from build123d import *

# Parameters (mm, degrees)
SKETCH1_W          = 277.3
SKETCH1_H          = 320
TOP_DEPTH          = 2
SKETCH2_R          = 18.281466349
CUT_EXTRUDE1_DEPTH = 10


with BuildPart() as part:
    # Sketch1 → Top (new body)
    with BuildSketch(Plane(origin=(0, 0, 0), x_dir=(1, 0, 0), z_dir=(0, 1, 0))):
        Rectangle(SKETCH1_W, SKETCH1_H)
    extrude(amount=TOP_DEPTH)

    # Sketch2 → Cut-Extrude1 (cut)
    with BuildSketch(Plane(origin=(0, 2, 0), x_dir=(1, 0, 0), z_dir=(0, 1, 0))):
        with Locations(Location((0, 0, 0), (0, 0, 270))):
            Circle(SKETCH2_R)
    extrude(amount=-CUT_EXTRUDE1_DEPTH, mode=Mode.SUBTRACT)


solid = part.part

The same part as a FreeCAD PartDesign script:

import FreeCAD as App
import Part
import Sketcher

V = App.Vector
Q = App.Units.Quantity

doc = App.newDocument("Part")
params = doc.addObject("Spreadsheet::Sheet", "Params")
for row, (alias, value) in enumerate([
    ("sketch1_height", "320 mm"),
    ("sketch1_width", "277.3 mm"),
    ("pad1_length", "2 mm"),
    ("pocket1_length", "10 mm"),
], start=1):
    params.set(f"A{row}", alias)
    params.set(f"B{row}", "=" + value)
    params.setAlias(f"B{row}", alias)

body = doc.addObject("PartDesign::Body", "Body")

sketch1 = doc.addObject("Sketcher::SketchObject", "Sketch")
body.addObject(sketch1)
sketch1.AttachmentSupport = (doc.XZ_Plane, [""])
sketch1.MapMode = "FlatFace"
sketch1.addGeometry(Part.LineSegment(V(-138.65, -160, 0), V(-138.65, 160, 0)), False)
sketch1.addGeometry(Part.LineSegment(V(-138.65, 160, 0), V(138.65, 160, 0)), False)
sketch1.addGeometry(Part.LineSegment(V(138.65, 160, 0), V(138.65, -160, 0)), False)
sketch1.addGeometry(Part.LineSegment(V(138.65, -160, 0), V(-138.65, -160, 0)), False)
sketch1.addConstraint(Sketcher.Constraint("Coincident", 0, 2, 1, 1))
sketch1.addConstraint(Sketcher.Constraint("Coincident", 1, 2, 2, 1))
sketch1.addConstraint(Sketcher.Constraint("Coincident", 2, 2, 3, 1))
sketch1.addConstraint(Sketcher.Constraint("Coincident", 3, 2, 0, 1))
sketch1.addConstraint(Sketcher.Constraint("Vertical", 0))
sketch1.addConstraint(Sketcher.Constraint("Horizontal", 1))
sketch1.addConstraint(Sketcher.Constraint("Vertical", 2))
sketch1.addConstraint(Sketcher.Constraint("Horizontal", 3))
sketch1.addConstraint(Sketcher.Constraint("Symmetric", 0, 2, 2, 2, -1, 1))
sketch1.addConstraint(Sketcher.Constraint("DistanceY", 0, 1, 0, 2, Q("320 mm")))
sketch1.addConstraint(Sketcher.Constraint("DistanceX", 1, 1, 1, 2, Q("277.3 mm")))
sketch1.setExpression("Constraints[9]", "Params.sketch1_height")
sketch1.setExpression("Constraints[10]", "Params.sketch1_width")
pad1 = doc.addObject("PartDesign::Pad", "Pad")
body.addObject(pad1)
pad1.Profile = sketch1
pad1.setExpression("Length", "Params.pad1_length")
pad1.Reversed = True

sketch2 = doc.addObject("Sketcher::SketchObject", "Sketch001")
body.addObject(sketch2)
sketch2.AttachmentSupport = (doc.XZ_Plane, [""])
sketch2.MapMode = "FlatFace"
sketch2.AttachmentOffset = App.Placement(V(0, 0, -2), App.Rotation())
sketch2.addGeometry(Part.Circle(V(0, 0, 0), V(0, 0, 1), 18.281466), False)
sketch2.addConstraint(Sketcher.Constraint("Coincident", 0, 3, -1, 1))
sketch2.addConstraint(Sketcher.Constraint("Diameter", 0, Q("36.562933 mm")))
pocket1 = doc.addObject("PartDesign::Pocket", "Pocket")
body.addObject(pocket1)
pocket1.Profile = sketch2
pocket1.setExpression("Length", "Params.pocket1_length")
pocket1.Reversed = True

doc.recompute()
